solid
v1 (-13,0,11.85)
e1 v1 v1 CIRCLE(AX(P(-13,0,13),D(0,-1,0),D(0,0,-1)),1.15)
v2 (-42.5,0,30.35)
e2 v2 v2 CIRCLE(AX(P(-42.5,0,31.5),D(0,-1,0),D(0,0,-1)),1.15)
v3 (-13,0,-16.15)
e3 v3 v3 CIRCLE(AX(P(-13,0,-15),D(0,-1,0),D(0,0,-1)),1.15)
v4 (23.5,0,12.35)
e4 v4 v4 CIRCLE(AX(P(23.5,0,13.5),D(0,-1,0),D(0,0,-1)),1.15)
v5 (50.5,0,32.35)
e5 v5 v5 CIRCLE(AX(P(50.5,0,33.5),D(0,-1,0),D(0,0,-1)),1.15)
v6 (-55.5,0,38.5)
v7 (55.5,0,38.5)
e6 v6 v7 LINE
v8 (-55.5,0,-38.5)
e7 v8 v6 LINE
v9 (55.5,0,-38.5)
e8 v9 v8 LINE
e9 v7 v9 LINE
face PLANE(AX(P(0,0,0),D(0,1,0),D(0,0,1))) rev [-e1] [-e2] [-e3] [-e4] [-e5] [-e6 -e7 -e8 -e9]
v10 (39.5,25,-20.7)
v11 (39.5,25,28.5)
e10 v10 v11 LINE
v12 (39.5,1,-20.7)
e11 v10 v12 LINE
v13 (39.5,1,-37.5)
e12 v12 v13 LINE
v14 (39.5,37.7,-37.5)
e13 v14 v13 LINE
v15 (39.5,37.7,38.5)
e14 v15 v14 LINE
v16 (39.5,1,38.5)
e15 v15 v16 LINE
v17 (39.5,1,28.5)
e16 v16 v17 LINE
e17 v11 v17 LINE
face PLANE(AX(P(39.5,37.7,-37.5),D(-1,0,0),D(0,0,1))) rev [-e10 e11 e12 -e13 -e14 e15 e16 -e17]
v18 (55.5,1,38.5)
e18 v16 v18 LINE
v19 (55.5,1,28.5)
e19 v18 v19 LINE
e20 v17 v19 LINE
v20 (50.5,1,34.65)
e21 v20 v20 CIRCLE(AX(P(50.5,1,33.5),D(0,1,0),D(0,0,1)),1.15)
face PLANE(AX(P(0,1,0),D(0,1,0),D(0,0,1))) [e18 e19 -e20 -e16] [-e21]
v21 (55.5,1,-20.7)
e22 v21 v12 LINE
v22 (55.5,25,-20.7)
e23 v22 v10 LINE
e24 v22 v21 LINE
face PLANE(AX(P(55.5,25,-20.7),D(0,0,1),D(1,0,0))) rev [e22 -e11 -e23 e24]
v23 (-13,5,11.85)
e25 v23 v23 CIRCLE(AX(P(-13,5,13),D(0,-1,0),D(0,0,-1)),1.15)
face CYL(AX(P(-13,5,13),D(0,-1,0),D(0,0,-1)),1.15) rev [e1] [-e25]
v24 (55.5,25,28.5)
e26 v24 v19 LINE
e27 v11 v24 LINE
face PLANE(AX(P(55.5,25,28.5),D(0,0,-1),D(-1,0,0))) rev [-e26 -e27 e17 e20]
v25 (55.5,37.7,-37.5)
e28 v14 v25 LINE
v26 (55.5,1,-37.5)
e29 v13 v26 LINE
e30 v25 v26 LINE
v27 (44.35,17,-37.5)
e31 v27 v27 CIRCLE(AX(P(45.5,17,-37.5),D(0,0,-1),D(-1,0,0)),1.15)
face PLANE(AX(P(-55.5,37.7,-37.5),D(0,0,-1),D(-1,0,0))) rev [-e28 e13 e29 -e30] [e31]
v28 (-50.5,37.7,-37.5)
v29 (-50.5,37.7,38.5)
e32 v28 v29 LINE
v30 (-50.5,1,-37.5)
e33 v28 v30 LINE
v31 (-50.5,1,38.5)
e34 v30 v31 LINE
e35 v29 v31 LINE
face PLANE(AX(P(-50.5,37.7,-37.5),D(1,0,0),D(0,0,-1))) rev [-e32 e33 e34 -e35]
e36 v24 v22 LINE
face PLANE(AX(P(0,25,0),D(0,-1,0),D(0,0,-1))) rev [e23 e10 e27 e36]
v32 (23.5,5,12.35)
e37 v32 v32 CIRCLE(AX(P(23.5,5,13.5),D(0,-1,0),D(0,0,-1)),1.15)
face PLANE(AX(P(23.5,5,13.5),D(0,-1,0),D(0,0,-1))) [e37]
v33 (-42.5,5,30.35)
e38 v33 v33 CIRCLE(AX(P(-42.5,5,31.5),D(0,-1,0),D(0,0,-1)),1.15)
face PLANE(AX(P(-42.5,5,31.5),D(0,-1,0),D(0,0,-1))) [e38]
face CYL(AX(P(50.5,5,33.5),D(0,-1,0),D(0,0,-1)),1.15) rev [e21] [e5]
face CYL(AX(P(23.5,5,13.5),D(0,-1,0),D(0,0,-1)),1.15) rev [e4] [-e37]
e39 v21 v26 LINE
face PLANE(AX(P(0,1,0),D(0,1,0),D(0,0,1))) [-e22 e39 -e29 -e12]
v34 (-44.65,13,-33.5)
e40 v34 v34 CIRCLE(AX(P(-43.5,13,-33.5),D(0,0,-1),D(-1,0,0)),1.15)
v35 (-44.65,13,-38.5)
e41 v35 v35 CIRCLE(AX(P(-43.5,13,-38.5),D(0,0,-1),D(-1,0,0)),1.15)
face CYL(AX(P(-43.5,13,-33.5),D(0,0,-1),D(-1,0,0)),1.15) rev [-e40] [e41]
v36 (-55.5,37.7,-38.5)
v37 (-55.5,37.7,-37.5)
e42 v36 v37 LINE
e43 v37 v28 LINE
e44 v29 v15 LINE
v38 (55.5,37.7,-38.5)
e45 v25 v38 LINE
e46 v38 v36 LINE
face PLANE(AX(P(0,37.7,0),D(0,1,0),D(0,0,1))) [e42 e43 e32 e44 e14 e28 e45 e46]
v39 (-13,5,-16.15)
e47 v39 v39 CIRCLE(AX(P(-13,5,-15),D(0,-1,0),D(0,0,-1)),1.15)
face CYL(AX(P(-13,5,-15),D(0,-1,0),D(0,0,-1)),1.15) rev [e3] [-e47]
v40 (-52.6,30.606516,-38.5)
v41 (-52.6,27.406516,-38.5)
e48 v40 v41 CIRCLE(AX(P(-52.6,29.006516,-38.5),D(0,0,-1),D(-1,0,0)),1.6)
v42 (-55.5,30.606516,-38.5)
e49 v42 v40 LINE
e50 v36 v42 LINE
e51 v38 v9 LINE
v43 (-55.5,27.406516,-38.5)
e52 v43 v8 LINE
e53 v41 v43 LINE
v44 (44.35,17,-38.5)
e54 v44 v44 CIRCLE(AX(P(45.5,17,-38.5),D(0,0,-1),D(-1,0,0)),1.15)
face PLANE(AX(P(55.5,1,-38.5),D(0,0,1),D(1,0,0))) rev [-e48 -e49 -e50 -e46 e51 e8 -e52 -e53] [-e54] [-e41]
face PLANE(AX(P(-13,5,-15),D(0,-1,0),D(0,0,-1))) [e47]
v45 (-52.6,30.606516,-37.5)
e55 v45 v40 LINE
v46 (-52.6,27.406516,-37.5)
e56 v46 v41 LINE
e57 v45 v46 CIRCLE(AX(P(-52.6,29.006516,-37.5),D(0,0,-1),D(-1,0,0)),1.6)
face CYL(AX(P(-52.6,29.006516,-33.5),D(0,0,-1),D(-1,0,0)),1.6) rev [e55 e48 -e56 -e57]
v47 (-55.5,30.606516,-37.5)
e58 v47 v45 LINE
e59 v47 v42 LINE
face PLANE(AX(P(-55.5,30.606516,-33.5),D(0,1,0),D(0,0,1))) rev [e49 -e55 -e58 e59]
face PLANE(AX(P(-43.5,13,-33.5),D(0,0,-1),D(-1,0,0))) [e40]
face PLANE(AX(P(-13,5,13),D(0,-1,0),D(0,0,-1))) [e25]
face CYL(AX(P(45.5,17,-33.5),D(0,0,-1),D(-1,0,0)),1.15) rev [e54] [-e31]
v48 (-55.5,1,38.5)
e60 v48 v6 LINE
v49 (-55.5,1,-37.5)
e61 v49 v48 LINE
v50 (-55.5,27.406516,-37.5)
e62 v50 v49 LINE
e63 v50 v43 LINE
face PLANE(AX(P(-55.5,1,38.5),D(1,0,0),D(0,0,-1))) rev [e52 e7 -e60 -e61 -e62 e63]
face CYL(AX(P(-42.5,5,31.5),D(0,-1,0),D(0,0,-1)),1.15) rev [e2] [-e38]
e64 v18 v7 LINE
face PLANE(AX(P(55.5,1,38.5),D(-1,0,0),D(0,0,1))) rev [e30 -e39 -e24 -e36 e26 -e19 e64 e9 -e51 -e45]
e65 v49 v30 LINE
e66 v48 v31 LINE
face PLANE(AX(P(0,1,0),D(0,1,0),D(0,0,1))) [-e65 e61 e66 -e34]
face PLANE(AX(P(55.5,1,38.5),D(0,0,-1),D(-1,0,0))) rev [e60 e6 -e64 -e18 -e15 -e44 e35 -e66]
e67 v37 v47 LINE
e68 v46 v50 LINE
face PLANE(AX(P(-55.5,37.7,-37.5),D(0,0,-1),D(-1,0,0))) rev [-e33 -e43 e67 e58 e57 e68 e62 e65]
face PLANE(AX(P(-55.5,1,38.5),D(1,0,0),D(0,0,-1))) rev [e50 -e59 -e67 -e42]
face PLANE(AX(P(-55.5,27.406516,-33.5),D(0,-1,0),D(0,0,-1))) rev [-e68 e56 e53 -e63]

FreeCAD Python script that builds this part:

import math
import FreeCAD as App
import Part
import Sketcher

V = App.Vector


def add_polygon(sketch, points):
    """Adds a closed chain of lines whose ends are joined by coincident constraints."""
    first, n = sketch.GeometryCount, len(points)
    for a, b in zip(points, points[1:] + points[:1]):
        sketch.addGeometry(Part.LineSegment(App.Vector(*a, 0), App.Vector(*b, 0)), False)
    for i in range(n):
        sketch.addConstraint(Sketcher.Constraint("Coincident", first + i, 2, first + (i + 1) % n, 1))

doc = App.newDocument("Part")
params = doc.addObject("Spreadsheet::Sheet", "Params")
for row, (alias, value) in enumerate([
    ("sketch1_width", "111 mm"),
    ("sketch1_height", "77 mm"),
    ("pad1_length", "1 mm"),
    ("sketch2_width", "111 mm"),
    ("sketch2_height", "1 mm"),
    ("pad2_length", "36.7 mm"),
    ("sketch3_width", "90 mm"),
    ("sketch3_height", "76 mm"),
    ("pad3_length", "36.7 mm"),
    ("sketch4_width", "16 mm"),
    ("sketch4_height", "49.2 mm"),
    ("pad4_length", "24 mm"),
    ("sketch5_diameter", "2.3 mm"),
    ("sketch5_radius", "1.6 mm"),
    ("sketch5_width", "2.9 mm"),
    ("pocket1_length", "5 mm"),
    ("sketch6_diameter", "2.3 mm"),
    ("pocket2_length", "5 mm"),
], start=1):
    params.set(f"A{row}", alias)
    params.set(f"B{row}", "=" + value)
    params.setAlias(f"B{row}", alias)

body = doc.addObject("PartDesign::Body", "Body")

# Sketch on XZ plane
sketch1 = body.newObject("Sketcher::SketchObject", "Sketch")
sketch1.AttachmentSupport = (doc.getObject("XZ_Plane"), [""])
sketch1.MapMode = "FlatFace"
add_polygon(sketch1, [(-55.5, -38.5), (-55.5, 38.5), (55.5, 38.5), (55.5, -38.5)])  # lines 0-3
sketch1.addConstraint([
    Sketcher.Constraint("Vertical", 0),
    Sketcher.Constraint("Horizontal", 1),
    Sketcher.Constraint("Vertical", 2),
    Sketcher.Constraint("Horizontal", 3),
    Sketcher.Constraint("Symmetric", 0, 2, 2, 2, -1, 1),
    Sketcher.Constraint("DistanceX", 1, 1, 1, 2, 111.0),
    Sketcher.Constraint("DistanceY", 0, 1, 0, 2, 77.0),
])
sketch1.setExpression("Constraints[9]", "Params.sketch1_width")
sketch1.setExpression("Constraints[10]", "Params.sketch1_height")
pad1 = body.newObject("PartDesign::Pad", "Pad")
pad1.Profile = sketch1
pad1.setExpression("Length", "Params.pad1_length")
pad1.Reversed = True

# Sketch on XZ plane
sketch2 = body.newObject("Sketcher::SketchObject", "Sketch001")
sketch2.AttachmentSupport = (doc.getObject("XZ_Plane"), [""])
sketch2.MapMode = "FlatFace"
sketch2.AttachmentOffset = App.Placement(V(0, 0, -1), App.Rotation())
add_polygon(sketch2, [(-55.5, -38.5), (-55.5, -37.5), (55.5, -37.5), (55.5, -38.5)])  # lines 0-3
sketch2.addConstraint([
    Sketcher.Constraint("Vertical", 0),
    Sketcher.Constraint("Horizontal", 1),
    Sketcher.Constraint("Vertical", 2),
    Sketcher.Constraint("Horizontal", 3),
    Sketcher.Constraint("DistanceX", 1, 1, 1, 2, 111.0),
    Sketcher.Constraint("DistanceY", 0, 1, 0, 2, 1.0),
    Sketcher.Constraint("DistanceX", 0, 2, -1, 1, 55.5),
    Sketcher.Constraint("DistanceY", 0, 2, -1, 1, 37.5),
])
sketch2.setExpression("Constraints[8]", "Params.sketch2_width")
sketch2.setExpression("Constraints[9]", "Params.sketch2_height")
pad2 = body.newObject("PartDesign::Pad", "Pad001")
pad2.Profile = sketch2
pad2.setExpression("Length", "Params.pad2_length")
pad2.Reversed = True

# Sketch on XZ plane
sketch3 = body.newObject("Sketcher::SketchObject", "Sketch002")
sketch3.AttachmentSupport = (doc.getObject("XZ_Plane"), [""])
sketch3.MapMode = "FlatFace"
sketch3.AttachmentOffset = App.Placement(V(0, 0, -1), App.Rotation())
add_polygon(sketch3, [(-50.5, -37.5), (-50.5, 38.5), (39.5, 38.5), (39.5, -37.5)])  # lines 0-3
sketch3.addConstraint([
    Sketcher.Constraint("Vertical", 0),
    Sketcher.Constraint("Horizontal", 1),
    Sketcher.Constraint("Vertical", 2),
    Sketcher.Constraint("Horizontal", 3),
    Sketcher.Constraint("DistanceX", 1, 1, 1, 2, 90.0),
    Sketcher.Constraint("DistanceY", 0, 1, 0, 2, 76.0),
    Sketcher.Constraint("DistanceX", 0, 2, -1, 1, 50.5),
    Sketcher.Constraint("DistanceY", -1, 1, 0, 2, 38.5),
])
sketch3.setExpression("Constraints[8]", "Params.sketch3_width")
sketch3.setExpression("Constraints[9]", "Params.sketch3_height")
pad3 = body.newObject("PartDesign::Pad", "Pad002")
pad3.Profile = sketch3
pad3.setExpression("Length", "Params.pad3_length")
pad3.Reversed = True

# Sketch on XZ plane
sketch4 = body.newObject("Sketcher::SketchObject", "Sketch003")
sketch4.AttachmentSupport = (doc.getObject("XZ_Plane"), [""])
sketch4.MapMode = "FlatFace"
sketch4.AttachmentOffset = App.Placement(V(0, 0, -1), App.Rotation())
add_polygon(sketch4, [(39.5, -20.7), (39.5, 28.5), (55.5, 28.5), (55.5, -20.7)])  # lines 0-3
sketch4.addConstraint([
    Sketcher.Constraint("Vertical", 0),
    Sketcher.Constraint("Horizontal", 1),
    Sketcher.Constraint("Vertical", 2),
    Sketcher.Constraint("Horizontal", 3),
    Sketcher.Constraint("DistanceX", 1, 1, 1, 2, 16.0),
    Sketcher.Constraint("DistanceY", 0, 1, 0, 2, 49.2),
    Sketcher.Constraint("DistanceX", -1, 1, 0, 2, 39.5),
    Sketcher.Constraint("DistanceY", -1, 1, 0, 2, 28.5),
])
sketch4.setExpression("Constraints[8]", "Params.sketch4_width")
sketch4.setExpression("Constraints[9]", "Params.sketch4_height")
pad4 = body.newObject("PartDesign::Pad", "Pad003")
pad4.Profile = sketch4
pad4.setExpression("Length", "Params.pad4_length")
pad4.Reversed = True

# Sketch on XY plane
sketch5 = body.newObject("Sketcher::SketchObject", "Sketch004")
sketch5.AttachmentSupport = (doc.getObject("XY_Plane"), [""])
sketch5.MapMode = "FlatFace"
sketch5.AttachmentOffset = App.Placement(V(0, 0, -38.5), App.Rotation())
sketch5.addGeometry([
    Part.Circle(V(45.5, 17, 0), V(0, 0, 1), 1.15),  # 0
    Part.Circle(V(-43.5, 13, 0), V(0, 0, 1), 1.15),  # 1
    Part.LineSegment(V(-55.5, 30.606516, 0), V(-52.6, 30.606516, 0)),  # 2
    Part.ArcOfCircle(Part.Circle(V(-52.6, 29.006516, 0), V(0, 0, 1), 1.6), math.radians(-90), math.radians(90)),  # 3
    Part.LineSegment(V(-52.6, 27.406516, 0), V(-55.5, 27.406516, 0)),  # 4
    Part.LineSegment(V(-55.5, 27.406516, 0), V(-55.5, 30.606516, 0)),  # 5
], False)
sketch5.addConstraint([
    Sketcher.Constraint("Tangent", 2, 2, 3, 2),
    Sketcher.Constraint("Tangent", 3, 1, 4, 1),
    Sketcher.Constraint("Coincident", 4, 2, 5, 1),
    Sketcher.Constraint("Coincident", 5, 2, 2, 1),
    Sketcher.Constraint("Horizontal", 2),
    Sketcher.Constraint("Horizontal", 4),
    Sketcher.Constraint("Vertical", 5),
    Sketcher.Constraint("Equal", 0, 1),
    Sketcher.Constraint("Diameter", 0, 2.3),
    Sketcher.Constraint("Radius", 3, 1.6),
    Sketcher.Constraint("DistanceX", 2, 1, 2, 2, 2.9),
    Sketcher.Constraint("DistanceY", -1, 1, 0, 3, 17.0),
    Sketcher.Constraint("DistanceY", -1, 1, 1, 3, 13.0),
    Sketcher.Constraint("DistanceX", 1, 3, 0, 3, 89.0),
    Sketcher.Constraint("DistanceX", 4, 2, 1, 3, 12.0),
    Sketcher.Constraint("DistanceX", -1, 1, 0, 3, 45.5),
    Sketcher.Constraint("DistanceY", -1, 1, 3, 3, 29.006516),
])
sketch5.setExpression("Constraints[8]", "Params.sketch5_diameter")
sketch5.setExpression("Constraints[9]", "Params.sketch5_radius")
sketch5.setExpression("Constraints[10]", "Params.sketch5_width")
pocket1 = body.newObject("PartDesign::Pocket", "Pocket")
pocket1.Profile = sketch5
pocket1.setExpression("Length", "Params.pocket1_length")
pocket1.Reversed = True

# Sketch on XZ plane
sketch6 = body.newObject("Sketcher::SketchObject", "Sketch005")
sketch6.AttachmentSupport = (doc.getObject("XZ_Plane"), [""])
sketch6.MapMode = "FlatFace"
sketch6.addGeometry([
    Part.Circle(V(-42.5, 31.5, 0), V(0, 0, 1), 1.15),  # 0
    Part.Circle(V(50.5, 33.5, 0), V(0, 0, 1), 1.15),  # 1
    Part.Circle(V(-13, 13, 0), V(0, 0, 1), 1.15),  # 2
    Part.Circle(V(23.5, 13.5, 0), V(0, 0, 1), 1.15),  # 3
    Part.Circle(V(-13, -15, 0), V(0, 0, 1), 1.15),  # 4
], False)
sketch6.addConstraint([
    Sketcher.Constraint("Equal", 0, 1),
    Sketcher.Constraint("Equal", 1, 2),
    Sketcher.Constraint("Equal", 2, 3),
    Sketcher.Constraint("Equal", 3, 4),
    Sketcher.Constraint("Vertical", 2, 3, 4, 3),
    Sketcher.Constraint("Diameter", 0, 2.3),
    Sketcher.Constraint("DistanceX", 2, 3, -1, 1, 13.0),
    Sketcher.Constraint("DistanceY", -1, 1, 2, 3, 13.0),
    Sketcher.Constraint("DistanceY", 4, 3, -1, 1, 15.0),
    Sketcher.Constraint("DistanceX", 0, 3, 1, 3, 93.0),
    Sketcher.Constraint("DistanceY", 0, 3, 1, 3, 2.0),
    Sketcher.Constraint("DistanceX", 3, 3, 1, 3, 27.0),
    Sketcher.Constraint("DistanceY", 3, 3, 1, 3, 20.0),
    Sketcher.Constraint("DistanceX", 0, 3, -1, 1, 42.5),
    Sketcher.Constraint("DistanceY", -1, 1, 0, 3, 31.5),
])
sketch6.setExpression("Constraints[5]", "Params.sketch6_diameter")
pocket2 = body.newObject("PartDesign::Pocket", "Pocket001")
pocket2.Profile = sketch6
pocket2.setExpression("Length", "Params.pocket2_length")

doc.recompute()
